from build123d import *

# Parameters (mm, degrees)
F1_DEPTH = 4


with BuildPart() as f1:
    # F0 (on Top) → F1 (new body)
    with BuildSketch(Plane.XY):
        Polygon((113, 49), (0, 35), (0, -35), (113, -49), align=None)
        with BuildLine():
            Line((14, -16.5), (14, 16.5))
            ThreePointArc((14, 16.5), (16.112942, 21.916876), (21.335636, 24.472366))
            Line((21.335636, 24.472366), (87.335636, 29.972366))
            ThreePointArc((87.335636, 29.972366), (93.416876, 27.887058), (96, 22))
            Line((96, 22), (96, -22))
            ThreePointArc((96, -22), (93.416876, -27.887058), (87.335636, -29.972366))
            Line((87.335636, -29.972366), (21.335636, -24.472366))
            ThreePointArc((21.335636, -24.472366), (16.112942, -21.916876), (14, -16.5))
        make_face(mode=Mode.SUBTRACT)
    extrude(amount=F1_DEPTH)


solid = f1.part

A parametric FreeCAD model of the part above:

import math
import FreeCAD as App
import Part
import Sketcher
from FreeCAD import Vector


def add_polygon(sketch, points):
    """Adds a closed chain of lines whose ends are joined by coincident constraints."""
    first, n = sketch.GeometryCount, len(points)
    for a, b in zip(points, points[1:] + points[:1]):
        sketch.addGeometry(Part.LineSegment(App.Vector(*a, 0), App.Vector(*b, 0)), False)
    for i in range(n):
        sketch.addConstraint(Sketcher.Constraint("Coincident", first + i, 2, first + (i + 1) % n, 1))

doc = App.newDocument("Part")
params = doc.addObject("Spreadsheet::Sheet", "Params")
for row, (alias, value) in enumerate([
    ("sketch1_radius", "8 mm"),
    ("sketch1_height", "70 mm"),
    ("sketch1_height2", "98 mm"),
    ("sketch1_height3", "33 mm"),
    ("sketch1_height4", "44 mm"),
    ("pad1_length", "4 mm"),
], start=1):
    params.set(f"A{row}", alias)
    params.set(f"B{row}", "=" + value)
    params.setAlias(f"B{row}", alias)

body = doc.addObject("PartDesign::Body", "Body")

sketch1 = doc.addObject("Sketcher::SketchObject", "Sketch")
body.addObject(sketch1)
sketch1.AttachmentSupport = (doc.XY_Plane, [""])
sketch1.MapMode = "FlatFace"
add_polygon(sketch1, [(113, 49), (0, 35), (0, -35), (113, -49)])
sketch1.addGeometry(Part.ArcOfCircle(Part.Circle(Vector(22, -16, 0), Vector(0, 0, 1), 8), math.radians(-180), math.radians(-95)), False)
sketch1.addGeometry(Part.LineSegment(Vector(14, -16, 0), Vector(14, 16, 0)), False)
sketch1.addGeometry(Part.ArcOfCircle(Part.Circle(Vector(22, 16, 0), Vector(0, 0, 1), 8), math.radians(95), math.radians(180)), False)
sketch1.addGeometry(Part.LineSegment(Vector(21, 24, 0), Vector(87, 30, 0)), False)
sketch1.addGeometry(Part.ArcOfCircle(Part.Circle(Vector(88, 22, 0), Vector(0, 0, 1), 8), math.radians(0), math.radians(95)), False)
sketch1.addGeometry(Part.LineSegment(Vector(96, 22, 0), Vector(96, -22, 0)), False)
sketch1.addGeometry(Part.ArcOfCircle(Part.Circle(Vector(88, -22, 0), Vector(0, 0, 1), 8), math.radians(-95), math.radians(0)), False)
sketch1.addGeometry(Part.LineSegment(Vector(87, -30, 0), Vector(21, -24, 0)), False)
sketch1.addConstraint([
    Sketcher.Constraint("Tangent", 4, 1, 5, 1),
    Sketcher.Constraint("Tangent", 5, 2, 6, 2),
    Sketcher.Constraint("Tangent", 6, 1, 7, 1),
    Sketcher.Constraint("Tangent", 7, 2, 8, 2),
    Sketcher.Constraint("Tangent", 8, 1, 9, 1),
    Sketcher.Constraint("Tangent", 9, 2, 10, 2),
    Sketcher.Constraint("Tangent", 10, 1, 11, 1),
    Sketcher.Constraint("Tangent", 11, 2, 4, 2),
    Sketcher.Constraint("Vertical", 1),
    Sketcher.Constraint("Vertical", 3),
    Sketcher.Constraint("Vertical", 5),
    Sketcher.Constraint("Vertical", 9),
    Sketcher.Constraint("Equal", 4, 6),
    Sketcher.Constraint("Equal", 6, 8),
    Sketcher.Constraint("Equal", 8, 10),
    Sketcher.Constraint("Symmetric", 0, 2, 1, 2, -1, 1),
    Sketcher.Constraint("Symmetric", 7, 2, 10, 1, -1),
    Sketcher.Constraint("Equal", 0, 2),
    Sketcher.Constraint("Radius", 4, 8.0),
    Sketcher.Constraint("DistanceY", 1, 2, 1, 1, 70.0),
    Sketcher.Constraint("DistanceY", 3, 1, 3, 2, 98.0),
    Sketcher.Constraint("DistanceY", 5, 1, 5, 2, 33.0),
    Sketcher.Constraint("DistanceY", 9, 2, 9, 1, 44.0),
    Sketcher.Constraint("DistanceX", -1, 1, 4, 3, 22.0),
    Sketcher.Constraint("DistanceX", -1, 1, 8, 3, 88.0),
    Sketcher.Constraint("DistanceX", -1, 1, 2, 2, 113.0),
])
sketch1.setExpression("Constraints[22]", "Params.sketch1_radius")
sketch1.setExpression("Constraints[23]", "Params.sketch1_height")
sketch1.setExpression("Constraints[24]", "Params.sketch1_height2")
sketch1.setExpression("Constraints[25]", "Params.sketch1_height3")
sketch1.setExpression("Constraints[26]", "Params.sketch1_height4")
pad1 = doc.addObject("PartDesign::Pad", "Pad")
body.addObject(pad1)
pad1.Profile = sketch1
pad1.setExpression("Length", "Params.pad1_length")

doc.recompute()
